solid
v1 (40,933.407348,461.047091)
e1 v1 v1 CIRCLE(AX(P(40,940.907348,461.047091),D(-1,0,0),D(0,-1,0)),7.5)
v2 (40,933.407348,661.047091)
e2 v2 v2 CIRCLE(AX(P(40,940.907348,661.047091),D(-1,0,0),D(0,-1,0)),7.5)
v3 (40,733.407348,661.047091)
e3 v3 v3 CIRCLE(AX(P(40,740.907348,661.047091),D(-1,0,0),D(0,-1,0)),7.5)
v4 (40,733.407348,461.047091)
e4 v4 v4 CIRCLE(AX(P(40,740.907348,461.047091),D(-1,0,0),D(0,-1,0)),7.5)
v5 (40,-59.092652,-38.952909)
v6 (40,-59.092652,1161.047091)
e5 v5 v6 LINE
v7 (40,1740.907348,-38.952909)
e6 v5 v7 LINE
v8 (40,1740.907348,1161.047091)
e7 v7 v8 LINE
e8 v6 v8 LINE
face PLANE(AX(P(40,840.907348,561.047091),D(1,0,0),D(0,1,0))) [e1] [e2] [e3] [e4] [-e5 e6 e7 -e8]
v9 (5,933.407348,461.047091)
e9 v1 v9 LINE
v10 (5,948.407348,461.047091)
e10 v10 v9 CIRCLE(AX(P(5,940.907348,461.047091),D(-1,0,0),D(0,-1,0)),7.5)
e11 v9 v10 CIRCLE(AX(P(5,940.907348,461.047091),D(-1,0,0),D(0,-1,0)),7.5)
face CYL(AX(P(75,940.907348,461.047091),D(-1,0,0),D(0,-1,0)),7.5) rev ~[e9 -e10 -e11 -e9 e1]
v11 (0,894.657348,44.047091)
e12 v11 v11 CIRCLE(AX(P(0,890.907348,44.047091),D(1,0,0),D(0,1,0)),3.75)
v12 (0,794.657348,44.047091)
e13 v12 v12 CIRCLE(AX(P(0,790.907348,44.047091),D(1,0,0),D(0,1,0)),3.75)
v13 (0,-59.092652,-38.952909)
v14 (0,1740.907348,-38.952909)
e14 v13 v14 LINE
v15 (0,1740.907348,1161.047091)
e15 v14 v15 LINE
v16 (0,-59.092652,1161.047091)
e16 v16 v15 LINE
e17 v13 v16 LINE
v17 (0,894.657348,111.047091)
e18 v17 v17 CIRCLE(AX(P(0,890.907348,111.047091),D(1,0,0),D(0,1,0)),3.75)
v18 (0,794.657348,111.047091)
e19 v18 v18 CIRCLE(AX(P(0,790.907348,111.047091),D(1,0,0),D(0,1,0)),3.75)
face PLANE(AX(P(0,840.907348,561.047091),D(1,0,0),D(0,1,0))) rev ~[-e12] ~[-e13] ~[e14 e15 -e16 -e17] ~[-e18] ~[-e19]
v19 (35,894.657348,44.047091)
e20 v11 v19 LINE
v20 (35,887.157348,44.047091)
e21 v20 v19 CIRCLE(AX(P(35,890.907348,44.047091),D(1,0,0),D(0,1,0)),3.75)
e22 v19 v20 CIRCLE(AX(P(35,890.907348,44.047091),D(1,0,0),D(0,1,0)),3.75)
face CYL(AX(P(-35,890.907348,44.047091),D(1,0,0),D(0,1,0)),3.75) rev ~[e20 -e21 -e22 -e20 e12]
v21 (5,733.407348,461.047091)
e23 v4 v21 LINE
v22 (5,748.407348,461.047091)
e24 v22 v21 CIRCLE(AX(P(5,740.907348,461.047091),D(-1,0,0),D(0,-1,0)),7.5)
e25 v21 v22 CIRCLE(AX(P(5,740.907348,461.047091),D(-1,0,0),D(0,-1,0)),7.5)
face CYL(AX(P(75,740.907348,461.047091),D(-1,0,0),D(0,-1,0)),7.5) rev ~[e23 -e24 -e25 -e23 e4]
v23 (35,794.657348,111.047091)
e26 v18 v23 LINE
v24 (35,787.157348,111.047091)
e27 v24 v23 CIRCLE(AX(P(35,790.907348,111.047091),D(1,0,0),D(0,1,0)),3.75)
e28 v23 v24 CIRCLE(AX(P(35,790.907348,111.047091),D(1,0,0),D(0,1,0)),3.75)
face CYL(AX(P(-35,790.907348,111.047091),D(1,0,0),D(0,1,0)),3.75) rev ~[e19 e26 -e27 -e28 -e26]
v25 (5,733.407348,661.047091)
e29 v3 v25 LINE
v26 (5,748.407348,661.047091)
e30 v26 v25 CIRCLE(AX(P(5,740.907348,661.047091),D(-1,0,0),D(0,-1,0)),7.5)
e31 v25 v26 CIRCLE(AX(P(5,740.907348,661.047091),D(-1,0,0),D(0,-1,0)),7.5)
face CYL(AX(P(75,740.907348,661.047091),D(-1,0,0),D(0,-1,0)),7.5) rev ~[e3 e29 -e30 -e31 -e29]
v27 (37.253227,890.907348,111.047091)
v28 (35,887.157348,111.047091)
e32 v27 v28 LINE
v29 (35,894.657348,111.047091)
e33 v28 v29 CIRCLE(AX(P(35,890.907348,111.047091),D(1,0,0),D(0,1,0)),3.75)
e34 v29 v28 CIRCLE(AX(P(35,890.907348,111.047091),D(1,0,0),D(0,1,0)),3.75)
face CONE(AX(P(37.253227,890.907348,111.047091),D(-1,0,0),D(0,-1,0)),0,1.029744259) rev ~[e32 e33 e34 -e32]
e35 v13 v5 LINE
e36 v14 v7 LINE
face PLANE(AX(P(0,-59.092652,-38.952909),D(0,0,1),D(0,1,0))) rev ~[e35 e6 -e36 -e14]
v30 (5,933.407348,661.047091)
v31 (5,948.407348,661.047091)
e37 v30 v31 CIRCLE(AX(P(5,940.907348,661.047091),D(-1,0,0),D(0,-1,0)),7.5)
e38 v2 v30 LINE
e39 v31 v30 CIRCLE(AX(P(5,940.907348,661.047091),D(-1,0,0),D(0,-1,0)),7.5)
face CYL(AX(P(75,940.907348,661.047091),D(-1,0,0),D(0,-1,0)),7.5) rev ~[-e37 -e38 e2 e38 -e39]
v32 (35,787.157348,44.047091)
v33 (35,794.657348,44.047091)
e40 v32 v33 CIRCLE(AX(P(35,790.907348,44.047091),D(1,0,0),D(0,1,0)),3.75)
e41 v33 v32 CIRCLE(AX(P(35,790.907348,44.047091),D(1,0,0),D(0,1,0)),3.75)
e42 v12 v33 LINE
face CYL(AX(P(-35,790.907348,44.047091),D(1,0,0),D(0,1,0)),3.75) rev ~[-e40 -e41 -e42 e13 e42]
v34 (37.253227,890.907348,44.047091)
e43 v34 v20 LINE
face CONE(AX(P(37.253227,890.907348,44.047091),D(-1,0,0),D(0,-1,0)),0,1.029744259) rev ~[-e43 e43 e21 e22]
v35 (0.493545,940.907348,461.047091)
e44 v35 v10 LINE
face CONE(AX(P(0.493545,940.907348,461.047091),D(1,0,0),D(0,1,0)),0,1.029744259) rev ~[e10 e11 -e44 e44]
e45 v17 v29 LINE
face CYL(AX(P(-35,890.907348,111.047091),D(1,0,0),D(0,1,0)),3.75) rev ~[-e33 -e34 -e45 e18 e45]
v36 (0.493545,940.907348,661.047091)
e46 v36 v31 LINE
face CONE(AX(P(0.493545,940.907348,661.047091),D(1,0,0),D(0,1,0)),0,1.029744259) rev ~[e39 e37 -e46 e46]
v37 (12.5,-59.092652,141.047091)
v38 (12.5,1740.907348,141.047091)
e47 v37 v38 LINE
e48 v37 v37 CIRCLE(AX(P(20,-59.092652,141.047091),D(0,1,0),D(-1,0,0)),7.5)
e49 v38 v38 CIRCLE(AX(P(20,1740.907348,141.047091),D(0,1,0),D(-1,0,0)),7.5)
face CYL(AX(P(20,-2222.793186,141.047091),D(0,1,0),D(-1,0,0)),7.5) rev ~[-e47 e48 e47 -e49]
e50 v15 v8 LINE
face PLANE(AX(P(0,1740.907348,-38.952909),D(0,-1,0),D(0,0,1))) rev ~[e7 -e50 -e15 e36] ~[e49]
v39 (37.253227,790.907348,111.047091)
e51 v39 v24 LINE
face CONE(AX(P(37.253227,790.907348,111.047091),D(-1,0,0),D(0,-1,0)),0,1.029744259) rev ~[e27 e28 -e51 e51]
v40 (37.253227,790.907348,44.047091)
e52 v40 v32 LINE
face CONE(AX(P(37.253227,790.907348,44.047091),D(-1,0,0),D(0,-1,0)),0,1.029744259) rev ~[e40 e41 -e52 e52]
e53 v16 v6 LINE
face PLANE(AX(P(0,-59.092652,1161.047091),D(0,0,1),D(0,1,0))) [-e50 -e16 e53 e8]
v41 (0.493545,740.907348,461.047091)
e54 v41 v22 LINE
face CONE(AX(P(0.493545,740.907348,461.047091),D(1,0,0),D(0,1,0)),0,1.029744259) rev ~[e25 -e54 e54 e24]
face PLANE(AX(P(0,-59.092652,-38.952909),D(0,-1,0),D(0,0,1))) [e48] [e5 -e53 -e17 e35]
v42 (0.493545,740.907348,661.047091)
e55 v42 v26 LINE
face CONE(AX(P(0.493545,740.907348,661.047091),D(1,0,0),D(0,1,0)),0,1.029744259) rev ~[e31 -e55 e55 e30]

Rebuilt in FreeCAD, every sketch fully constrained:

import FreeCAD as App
import Part
import Sketcher
from FreeCAD import Vector
Q = App.Units.Quantity


def add_polygon(sketch, points):
    """Adds a closed chain of lines whose ends are joined by coincident constraints."""
    first, n = sketch.GeometryCount, len(points)
    for a, b in zip(points, points[1:] + points[:1]):
        sketch.addGeometry(Part.LineSegment(App.Vector(*a, 0), App.Vector(*b, 0)), False)
    for i in range(n):
        sketch.addConstraint(Sketcher.Constraint("Coincident", first + i, 2, first + (i + 1) % n, 1))

doc = App.newDocument("Part")
body = doc.addObject("PartDesign::Body", "Body")

# Sketch on YZ plane
sketch1 = body.newObject("Sketcher::SketchObject", "Sketch")
sketch1.AttachmentSupport = (doc.getObject("YZ_Plane"), [""])
sketch1.MapMode = "FlatFace"
add_polygon(sketch1, [(-59.092652, 1161.047091), (-59.092652, -38.952909), (1740.907348, -38.952909), (1740.907348, 1161.047091)])  # lines 0-3
sketch1.addConstraint([
    Sketcher.Constraint("Vertical", 0),
    Sketcher.Constraint("Horizontal", 1),
    Sketcher.Constraint("Vertical", 2),
    Sketcher.Constraint("Horizontal", 3),
    Sketcher.Constraint("DistanceX", 1, 1, 1, 2, Q("1800 mm")),
    Sketcher.Constraint("DistanceY", 0, 2, 0, 1, Q("1200 mm")),
    Sketcher.Constraint("DistanceY", 0, 2, -1, 1, Q("38.952909 mm")),
    Sketcher.Constraint("DistanceX", 0, 2, -1, 1, Q("59.092652 mm")),
])
pad1 = body.newObject("PartDesign::Pad", "Pad")
pad1.Profile = sketch1
pad1.Length = 40

# Sketch on XZ plane
sketch2 = body.newObject("Sketcher::SketchObject", "Sketch001")
sketch2.AttachmentSupport = (doc.getObject("XZ_Plane"), [""])
sketch2.MapMode = "FlatFace"
sketch2.AttachmentOffset = App.Placement(Vector(0, 0, 59.092652), App.Rotation())
sketch2.addGeometry(Part.Circle(Vector(20, 141.047091, 0), Vector(0, 0, 1), 7.5), False)
sketch2.addConstraint([
    Sketcher.Constraint("Diameter", 0, Q("15 mm")),
    Sketcher.Constraint("DistanceX", -1, 1, 0, 3, Q("20 mm")),
    Sketcher.Constraint("DistanceY", -1, 1, 0, 3, Q("141.047091 mm")),
])
doc.recompute()
hole = body.newObject("PartDesign::Hole", "Hole")
hole.Profile = sketch2
hole.ThreadType = "None"
hole.Diameter = 15
hole.DepthType = "ThroughAll"

# Sketch on YZ plane
sketch3 = body.newObject("Sketcher::SketchObject", "Sketch002")
sketch3.AttachmentSupport = (doc.getObject("YZ_Plane"), [""])
sketch3.MapMode = "FlatFace"
sketch3.addGeometry([
    Part.Circle(Vector(890.907348, 111.047091, 0), Vector(0, 0, 1), 3.75),
    Part.Circle(Vector(890.907348, 44.047091, 0), Vector(0, 0, 1), 3.75),
    Part.Circle(Vector(790.907348, 44.047091, 0), Vector(0, 0, 1), 3.75),
    Part.Circle(Vector(790.907348, 111.047091, 0), Vector(0, 0, 1), 3.75),
], False)
sketch3.addConstraint([
    Sketcher.Constraint("Equal", 0, 1),
    Sketcher.Constraint("Equal", 1, 2),
    Sketcher.Constraint("Equal", 2, 3),
    Sketcher.Constraint("Horizontal", 1, 3, 2, 3),
    Sketcher.Constraint("Horizontal", 0, 3, 3, 3),
    Sketcher.Constraint("Vertical", 0, 3, 1, 3),
    Sketcher.Constraint("Vertical", 2, 3, 3, 3),
    Sketcher.Constraint("Diameter", 0, Q("7.5 mm")),
    Sketcher.Constraint("DistanceY", 1, 3, 0, 3, Q("67 mm")),
    Sketcher.Constraint("DistanceX", 2, 3, 1, 3, Q("100 mm")),
    Sketcher.Constraint("DistanceY", -1, 1, 0, 3, Q("111.047091 mm")),
    Sketcher.Constraint("DistanceX", -1, 1, 0, 3, Q("890.907348 mm")),
])
doc.recompute()
hole2 = body.newObject("PartDesign::Hole", "Hole001")
hole2.Profile = sketch3
hole2.ThreadType = "None"
hole2.Diameter = 7.5
hole2.DepthType = "Dimension"
hole2.Depth = 35
hole2.DrillPoint = "Angled"
hole2.DrillPointAngle = 118
hole2.Reversed = True

# Sketch on YZ plane
sketch4 = body.newObject("Sketcher::SketchObject", "Sketch003")
sketch4.AttachmentSupport = (doc.getObject("YZ_Plane"), [""])
sketch4.MapMode = "FlatFace"
sketch4.AttachmentOffset = App.Placement(Vector(0, 0, 40), App.Rotation())
sketch4.addGeometry([
    Part.Circle(Vector(740.907348, 661.047091, 0), Vector(0, 0, 1), 7.5),
    Part.Circle(Vector(940.907348, 661.047091, 0), Vector(0, 0, 1), 7.5),
    Part.Circle(Vector(940.907348, 461.047091, 0), Vector(0, 0, 1), 7.5),
    Part.Circle(Vector(740.907348, 461.047091, 0), Vector(0, 0, 1), 7.5),
], False)
sketch4.addConstraint([
    Sketcher.Constraint("Equal", 0, 1),
    Sketcher.Constraint("Equal", 1, 2),
    Sketcher.Constraint("Equal", 2, 3),
    Sketcher.Constraint("Horizontal", 0, 3, 1, 3),
    Sketcher.Constraint("Horizontal", 2, 3, 3, 3),
    Sketcher.Constraint("Vertical", 1, 3, 2, 3),
    Sketcher.Constraint("Vertical", 0, 3, 3, 3),
    Sketcher.Constraint("Diameter", 0, Q("15 mm")),
    Sketcher.Constraint("DistanceX", 0, 3, 1, 3, Q("200 mm")),
    Sketcher.Constraint("DistanceY", 2, 3, 1, 3, Q("200 mm")),
    Sketcher.Constraint("DistanceY", -1, 1, 0, 3, Q("661.047091 mm")),
    Sketcher.Constraint("DistanceX", -1, 1, 0, 3, Q("740.907348 mm")),
])
doc.recompute()
hole3 = body.newObject("PartDesign::Hole", "Hole002")
hole3.Profile = sketch4
hole3.ThreadType = "None"
hole3.Diameter = 15
hole3.DepthType = "Dimension"
hole3.Depth = 35
hole3.DrillPoint = "Angled"
hole3.DrillPointAngle = 118

doc.recompute()
